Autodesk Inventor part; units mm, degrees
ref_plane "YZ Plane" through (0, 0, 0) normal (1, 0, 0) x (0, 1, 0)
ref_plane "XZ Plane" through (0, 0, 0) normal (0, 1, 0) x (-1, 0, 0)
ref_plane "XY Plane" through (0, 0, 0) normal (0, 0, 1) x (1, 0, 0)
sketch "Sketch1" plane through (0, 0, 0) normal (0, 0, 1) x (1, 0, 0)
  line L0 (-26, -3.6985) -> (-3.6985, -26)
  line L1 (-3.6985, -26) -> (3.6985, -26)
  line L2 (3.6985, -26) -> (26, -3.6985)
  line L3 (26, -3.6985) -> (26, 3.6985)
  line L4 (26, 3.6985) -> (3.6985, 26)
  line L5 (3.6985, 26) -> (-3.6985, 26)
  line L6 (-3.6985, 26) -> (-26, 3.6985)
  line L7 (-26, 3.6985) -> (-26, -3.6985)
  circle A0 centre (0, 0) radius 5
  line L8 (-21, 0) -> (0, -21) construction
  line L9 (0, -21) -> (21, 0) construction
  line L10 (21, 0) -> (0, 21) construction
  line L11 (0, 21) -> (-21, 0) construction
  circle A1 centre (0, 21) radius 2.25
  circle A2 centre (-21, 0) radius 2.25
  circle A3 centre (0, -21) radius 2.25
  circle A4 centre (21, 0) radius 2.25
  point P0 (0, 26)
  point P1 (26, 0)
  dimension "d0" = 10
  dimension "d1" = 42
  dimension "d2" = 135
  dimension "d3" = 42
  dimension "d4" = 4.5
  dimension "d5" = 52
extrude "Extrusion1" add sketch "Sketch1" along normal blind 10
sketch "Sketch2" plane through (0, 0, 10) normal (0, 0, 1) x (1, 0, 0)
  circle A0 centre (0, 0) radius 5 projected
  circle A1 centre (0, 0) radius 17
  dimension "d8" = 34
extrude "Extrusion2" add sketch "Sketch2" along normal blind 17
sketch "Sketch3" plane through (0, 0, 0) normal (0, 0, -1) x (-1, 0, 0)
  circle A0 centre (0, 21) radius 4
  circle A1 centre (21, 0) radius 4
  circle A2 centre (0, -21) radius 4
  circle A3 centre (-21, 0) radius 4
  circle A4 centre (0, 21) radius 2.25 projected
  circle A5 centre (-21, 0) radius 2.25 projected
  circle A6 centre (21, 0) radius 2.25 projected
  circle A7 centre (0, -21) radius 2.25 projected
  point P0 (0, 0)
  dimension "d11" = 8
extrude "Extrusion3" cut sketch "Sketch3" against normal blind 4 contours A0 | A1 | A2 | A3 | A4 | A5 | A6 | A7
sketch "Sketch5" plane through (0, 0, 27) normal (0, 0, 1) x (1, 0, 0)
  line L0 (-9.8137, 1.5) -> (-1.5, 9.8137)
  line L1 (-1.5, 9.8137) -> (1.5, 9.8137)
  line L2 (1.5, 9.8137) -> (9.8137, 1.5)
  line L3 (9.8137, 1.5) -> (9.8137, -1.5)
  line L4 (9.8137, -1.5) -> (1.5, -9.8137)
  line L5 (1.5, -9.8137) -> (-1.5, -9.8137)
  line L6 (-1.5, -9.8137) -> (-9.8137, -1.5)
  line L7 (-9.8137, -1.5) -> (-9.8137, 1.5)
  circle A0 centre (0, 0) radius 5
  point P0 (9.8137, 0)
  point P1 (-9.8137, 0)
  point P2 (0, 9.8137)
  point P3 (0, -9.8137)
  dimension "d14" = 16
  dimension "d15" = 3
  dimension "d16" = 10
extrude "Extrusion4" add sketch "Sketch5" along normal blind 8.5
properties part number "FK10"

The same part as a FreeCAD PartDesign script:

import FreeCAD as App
import Part
import Sketcher
from FreeCAD import Vector


def add_polygon(sketch, points):
    """Adds a closed chain of lines whose ends are joined by coincident constraints."""
    first, n = sketch.GeometryCount, len(points)
    for a, b in zip(points, points[1:] + points[:1]):
        sketch.addGeometry(Part.LineSegment(App.Vector(*a, 0), App.Vector(*b, 0)), False)
    for i in range(n):
        sketch.addConstraint(Sketcher.Constraint("Coincident", first + i, 2, first + (i + 1) % n, 1))

doc = App.newDocument("Part")
body = doc.addObject("PartDesign::Body", "Body")

# Sketch on XY plane
sketch1 = body.newObject("Sketcher::SketchObject", "Sketch")
sketch1.AttachmentSupport = (doc.getObject("XY_Plane"), [""])
sketch1.MapMode = "FlatFace"
add_polygon(sketch1, [(-26, 3.7), (-26, -3.7), (-3.7, -26), (3.7, -26), (26, -3.7), (26, 3.7), (3.7, 26), (-3.7, 26)])  # lines 0-7
sketch1.addGeometry(Part.Circle(Vector(0, -21, 0), Vector(0, 0, 1), 2.2), False)  # 8
sketch1.addGeometry(Part.Circle(Vector(-21, 0, 0), Vector(0, 0, 1), 2.2), False)  # 9
sketch1.addGeometry(Part.Circle(Vector(0, 0, 0), Vector(0, 0, 1), 5), False)  # 10
sketch1.addGeometry(Part.Circle(Vector(21, 0, 0), Vector(0, 0, 1), 2.2), False)  # 11
sketch1.addGeometry(Part.Circle(Vector(0, 21, 0), Vector(0, 0, 1), 2.2), False)  # 12
sketch1.addConstraint([
    Sketcher.Constraint("Vertical", 0),
    Sketcher.Constraint("Horizontal", 2),
    Sketcher.Constraint("Vertical", 4),
    Sketcher.Constraint("Horizontal", 6),
    Sketcher.Constraint("Coincident", 10, 3, -1, 1),
    Sketcher.Constraint("Equal", 8, 9),
    Sketcher.Constraint("Equal", 9, 11),
    Sketcher.Constraint("Equal", 11, 12),
    Sketcher.Constraint("Symmetric", 9, 3, 11, 3, -1, 1),
    Sketcher.Constraint("Symmetric", 8, 3, 12, 3, -1, 1),
    Sketcher.Constraint("Symmetric", 0, 2, 4, 2, -1, 1),
    Sketcher.Constraint("Symmetric", 1, 2, 5, 2, -1, 1),
    Sketcher.Constraint("PointOnObject", 8, 3, -2),
    Sketcher.Constraint("PointOnObject", 9, 3, -1),
    Sketcher.Constraint("Perpendicular", 1, 3),
    Sketcher.Constraint("Perpendicular", 5, 7),
    Sketcher.Constraint("Horizontal", 0, 2, 3, 2),
    Sketcher.Constraint("Horizontal", 4, 2, 7, 2),
    Sketcher.Constraint("Vertical", 2, 2, 5, 2),
    Sketcher.Constraint("Equal", 6, 0),
    Sketcher.Constraint("Diameter", 10, 10.0),
    Sketcher.Constraint("Diameter", 8, 4.5),
    Sketcher.Constraint("DistanceX", 9, 3, 11, 3, 42.0),
    Sketcher.Constraint("DistanceY", 8, 3, 12, 3, 42.0),
    Sketcher.Constraint("DistanceX", 0, 2, -1, 1, 26.0),
    Sketcher.Constraint("DistanceX", 2, 1, 2, 2, 7.397),
])
pad1 = body.newObject("PartDesign::Pad", "Pad")
pad1.Profile = sketch1
pad1.Length = 10

# Sketch on XY plane
sketch2 = body.newObject("Sketcher::SketchObject", "Sketch001")
sketch2.AttachmentSupport = (doc.getObject("XY_Plane"), [""])
sketch2.MapMode = "FlatFace"
sketch2.AttachmentOffset = App.Placement(Vector(0, 0, 10), App.Rotation())
sketch2.addGeometry([
    Part.Circle(Vector(0, 0, 0), Vector(0, 0, 1), 17),
    Part.Circle(Vector(0, 0, 0), Vector(0, 0, 1), 5),
], False)
sketch2.addConstraint([
    Sketcher.Constraint("Coincident", 0, 3, -1, 1),
    Sketcher.Constraint("Coincident", 1, 3, -1, 1),
    Sketcher.Constraint("Diameter", 0, 34.0),
    Sketcher.Constraint("Diameter", 1, 10.0),
])
pad2 = body.newObject("PartDesign::Pad", "Pad001")
pad2.Profile = sketch2
pad2.Length = 17

# Sketch on XY plane
sketch3 = body.newObject("Sketcher::SketchObject", "Sketch002")
sketch3.AttachmentSupport = (doc.getObject("XY_Plane"), [""])
sketch3.MapMode = "FlatFace"
sketch3.addGeometry([
    Part.Circle(Vector(0, 21, 0), Vector(0, 0, 1), 4),
    Part.Circle(Vector(-21, 0, 0), Vector(0, 0, 1), 4),
    Part.Circle(Vector(0, -21, 0), Vector(0, 0, 1), 4),
    Part.Circle(Vector(21, 0, 0), Vector(0, 0, 1), 4),
], False)
sketch3.addConstraint([
    Sketcher.Constraint("Equal", 0, 1),
    Sketcher.Constraint("Equal", 1, 2),
    Sketcher.Constraint("Equal", 2, 3),
    Sketcher.Constraint("Symmetric", 0, 3, 2, 3, -1, 1),
    Sketcher.Constraint("Symmetric", 1, 3, 3, 3, -1, 1),
    Sketcher.Constraint("PointOnObject", 0, 3, -2),
    Sketcher.Constraint("PointOnObject", 1, 3, -1),
    Sketcher.Constraint("Diameter", 0, 8.0),
    Sketcher.Constraint("DistanceY", -1, 1, 0, 3, 21.0),
    Sketcher.Constraint("DistanceX", 1, 3, -1, 1, 21.0),
])
pocket1 = body.newObject("PartDesign::Pocket", "Pocket")
pocket1.Profile = sketch3
pocket1.Length = 4
pocket1.Reversed = True

# Sketch on XY plane
sketch4 = body.newObject("Sketcher::SketchObject", "Sketch003")
sketch4.AttachmentSupport = (doc.getObject("XY_Plane"), [""])
sketch4.MapMode = "FlatFace"
sketch4.AttachmentOffset = App.Placement(Vector(0, 0, 27), App.Rotation())
add_polygon(sketch4, [(-1.5, 9.8), (-9.8, 1.5), (-9.8, -1.5), (-1.5, -9.8), (1.5, -9.8), (9.8, -1.5), (9.8, 1.5), (1.5, 9.8)])  # lines 0-7
sketch4.addGeometry(Part.Circle(Vector(0, 0, 0), Vector(0, 0, 1), 5), False)  # 8
sketch4.addConstraint([
    Sketcher.Constraint("Vertical", 1),
    Sketcher.Constraint("Horizontal", 3),
    Sketcher.Constraint("Vertical", 5),
    Sketcher.Constraint("Horizontal", 7),
    Sketcher.Constraint("Coincident", 8, 3, -1, 1),
    Sketcher.Constraint("Symmetric", 0, 2, 4, 2, -1, 1),
    Sketcher.Constraint("Symmetric", 2, 2, 6, 2, -1, 1),
    Sketcher.Constraint("Perpendicular", 0, 2),
    Sketcher.Constraint("Perpendicular", 2, 4),
    Sketcher.Constraint("Perpendicular", 4, 6),
    Sketcher.Constraint("Horizontal", 1, 2, 4, 2),
    Sketcher.Constraint("Vertical", 3, 2, 6, 2),
    Sketcher.Constraint("Equal", 7, 1),
    Sketcher.Constraint("Diameter", 8, 10.0),
    Sketcher.Constraint("DistanceX", 3, 1, 3, 2, 3.0),
    Sketcher.Constraint("Distance", 0, 11.7573),
])
pad3 = body.newObject("PartDesign::Pad", "Pad002")
pad3.Profile = sketch4
pad3.Length = 8.5

doc.recompute()
